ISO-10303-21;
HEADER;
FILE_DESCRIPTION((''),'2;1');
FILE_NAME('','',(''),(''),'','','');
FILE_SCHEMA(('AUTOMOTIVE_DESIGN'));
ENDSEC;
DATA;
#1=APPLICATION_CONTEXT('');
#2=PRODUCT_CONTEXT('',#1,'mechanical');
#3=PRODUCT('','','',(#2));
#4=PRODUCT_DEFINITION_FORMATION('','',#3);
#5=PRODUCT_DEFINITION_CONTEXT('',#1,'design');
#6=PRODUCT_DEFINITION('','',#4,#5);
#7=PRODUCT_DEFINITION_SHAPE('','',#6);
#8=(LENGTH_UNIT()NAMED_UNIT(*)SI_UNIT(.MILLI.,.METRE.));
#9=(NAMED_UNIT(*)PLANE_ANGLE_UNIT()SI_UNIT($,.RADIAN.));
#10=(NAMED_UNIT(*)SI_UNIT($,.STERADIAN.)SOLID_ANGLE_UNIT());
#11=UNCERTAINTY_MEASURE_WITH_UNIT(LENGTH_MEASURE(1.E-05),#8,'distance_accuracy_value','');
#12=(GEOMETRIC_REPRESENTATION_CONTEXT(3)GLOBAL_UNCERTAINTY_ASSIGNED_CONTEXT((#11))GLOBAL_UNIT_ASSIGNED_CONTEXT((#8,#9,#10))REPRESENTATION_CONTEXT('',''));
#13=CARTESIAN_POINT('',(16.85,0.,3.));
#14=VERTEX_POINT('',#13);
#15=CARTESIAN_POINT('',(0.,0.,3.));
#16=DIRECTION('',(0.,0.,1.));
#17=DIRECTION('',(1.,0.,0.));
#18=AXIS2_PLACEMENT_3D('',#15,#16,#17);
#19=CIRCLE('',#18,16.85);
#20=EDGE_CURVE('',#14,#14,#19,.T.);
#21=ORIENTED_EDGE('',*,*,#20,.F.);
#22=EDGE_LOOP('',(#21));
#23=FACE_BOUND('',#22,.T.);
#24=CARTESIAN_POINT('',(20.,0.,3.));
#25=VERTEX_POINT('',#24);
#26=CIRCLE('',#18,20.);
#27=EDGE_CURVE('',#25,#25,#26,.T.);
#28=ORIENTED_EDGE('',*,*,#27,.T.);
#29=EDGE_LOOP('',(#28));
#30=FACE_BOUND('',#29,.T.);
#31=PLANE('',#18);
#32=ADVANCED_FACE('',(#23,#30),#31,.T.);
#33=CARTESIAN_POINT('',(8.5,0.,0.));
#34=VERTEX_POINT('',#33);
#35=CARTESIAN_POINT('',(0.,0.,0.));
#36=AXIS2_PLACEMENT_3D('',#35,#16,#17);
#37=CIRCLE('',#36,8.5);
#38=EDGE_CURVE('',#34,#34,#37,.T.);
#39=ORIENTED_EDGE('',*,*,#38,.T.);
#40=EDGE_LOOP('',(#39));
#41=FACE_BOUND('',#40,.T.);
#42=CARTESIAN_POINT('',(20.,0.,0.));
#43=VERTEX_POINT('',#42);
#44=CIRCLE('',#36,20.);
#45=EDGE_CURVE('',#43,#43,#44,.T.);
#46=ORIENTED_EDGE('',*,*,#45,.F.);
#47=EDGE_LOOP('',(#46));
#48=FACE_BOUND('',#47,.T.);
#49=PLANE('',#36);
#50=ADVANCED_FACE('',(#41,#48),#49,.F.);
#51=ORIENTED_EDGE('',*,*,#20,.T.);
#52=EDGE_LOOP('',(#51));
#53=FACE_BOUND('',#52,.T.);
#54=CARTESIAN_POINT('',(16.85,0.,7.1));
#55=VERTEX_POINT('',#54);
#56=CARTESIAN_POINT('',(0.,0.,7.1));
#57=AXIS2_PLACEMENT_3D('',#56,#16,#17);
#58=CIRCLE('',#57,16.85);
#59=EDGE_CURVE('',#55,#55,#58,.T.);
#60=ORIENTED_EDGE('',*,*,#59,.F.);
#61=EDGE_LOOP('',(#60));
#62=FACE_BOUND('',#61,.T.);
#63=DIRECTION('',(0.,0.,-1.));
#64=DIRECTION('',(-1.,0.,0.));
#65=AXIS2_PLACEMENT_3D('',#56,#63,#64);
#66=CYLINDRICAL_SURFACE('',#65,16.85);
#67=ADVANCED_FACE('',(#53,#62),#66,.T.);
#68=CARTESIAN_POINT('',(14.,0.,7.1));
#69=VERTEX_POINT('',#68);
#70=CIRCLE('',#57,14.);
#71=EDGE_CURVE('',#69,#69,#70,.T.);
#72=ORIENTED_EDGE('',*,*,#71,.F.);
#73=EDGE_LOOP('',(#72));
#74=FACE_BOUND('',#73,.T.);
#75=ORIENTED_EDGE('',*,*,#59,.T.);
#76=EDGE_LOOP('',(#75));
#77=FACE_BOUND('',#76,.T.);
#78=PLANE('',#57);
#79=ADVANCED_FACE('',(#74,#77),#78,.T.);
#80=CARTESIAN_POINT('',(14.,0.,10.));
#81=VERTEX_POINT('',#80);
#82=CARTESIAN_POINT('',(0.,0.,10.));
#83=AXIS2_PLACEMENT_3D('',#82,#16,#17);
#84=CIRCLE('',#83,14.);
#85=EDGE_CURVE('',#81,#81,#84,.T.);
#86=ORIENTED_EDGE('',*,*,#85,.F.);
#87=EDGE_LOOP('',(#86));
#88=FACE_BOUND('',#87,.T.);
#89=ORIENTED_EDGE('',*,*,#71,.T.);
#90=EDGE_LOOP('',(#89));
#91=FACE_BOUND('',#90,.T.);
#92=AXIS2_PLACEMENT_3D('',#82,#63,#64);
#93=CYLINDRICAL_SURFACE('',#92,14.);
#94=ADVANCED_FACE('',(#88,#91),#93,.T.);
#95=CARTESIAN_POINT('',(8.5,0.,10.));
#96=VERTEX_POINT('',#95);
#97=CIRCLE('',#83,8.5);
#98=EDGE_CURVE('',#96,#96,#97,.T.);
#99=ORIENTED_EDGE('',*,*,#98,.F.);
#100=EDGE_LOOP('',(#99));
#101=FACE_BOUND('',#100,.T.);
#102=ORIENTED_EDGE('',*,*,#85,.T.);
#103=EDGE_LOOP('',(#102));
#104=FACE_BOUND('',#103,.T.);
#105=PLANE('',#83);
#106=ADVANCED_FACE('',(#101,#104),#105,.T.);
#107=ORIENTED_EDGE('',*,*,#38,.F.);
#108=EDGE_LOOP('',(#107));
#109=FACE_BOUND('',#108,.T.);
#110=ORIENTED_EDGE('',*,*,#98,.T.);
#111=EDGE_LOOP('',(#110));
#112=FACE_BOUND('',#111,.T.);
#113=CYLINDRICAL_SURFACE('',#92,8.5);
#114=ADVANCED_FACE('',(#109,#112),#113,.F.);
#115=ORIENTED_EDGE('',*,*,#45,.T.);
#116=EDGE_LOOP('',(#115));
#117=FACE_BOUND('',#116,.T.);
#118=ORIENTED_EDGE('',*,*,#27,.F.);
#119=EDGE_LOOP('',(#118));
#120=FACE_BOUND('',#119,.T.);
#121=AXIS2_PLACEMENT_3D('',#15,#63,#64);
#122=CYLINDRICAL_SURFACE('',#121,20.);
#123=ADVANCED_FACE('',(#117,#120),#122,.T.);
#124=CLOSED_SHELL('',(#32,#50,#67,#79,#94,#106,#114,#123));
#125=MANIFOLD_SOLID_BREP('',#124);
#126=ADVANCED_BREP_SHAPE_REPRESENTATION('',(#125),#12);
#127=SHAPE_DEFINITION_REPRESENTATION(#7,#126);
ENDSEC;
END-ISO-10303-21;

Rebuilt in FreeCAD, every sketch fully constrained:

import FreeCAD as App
import Part
import Sketcher

doc = App.newDocument("Part")
body = doc.addObject("PartDesign::Body", "Body")

sketch1 = doc.addObject("Sketcher::SketchObject", "Sketch")
body.addObject(sketch1)
sketch1.AttachmentSupport = (doc.XY_Plane, [""])
sketch1.MapMode = "FlatFace"
sketch1.addGeometry(Part.Circle(App.Vector(0, 0, 0), App.Vector(0, 0, 1), 20), False)
sketch1.addGeometry(Part.Circle(App.Vector(0, 0, 0), App.Vector(0, 0, 1), 17), False)
sketch1.addConstraint(Sketcher.Constraint("Coincident", 0, 3, -1, 1))
sketch1.addConstraint(Sketcher.Constraint("Coincident", 1, 3, -1, 1))
sketch1.addConstraint(Sketcher.Constraint("Diameter", 0, 40.0))
sketch1.addConstraint(Sketcher.Constraint("Diameter", 1, 33.7))
pad1 = doc.addObject("PartDesign::Pad", "Pad")
body.addObject(pad1)
pad1.Profile = sketch1
pad1.Length = 3

sketch2 = doc.addObject("Sketcher::SketchObject", "Sketch001")
body.addObject(sketch2)
sketch2.AttachmentSupport = (doc.XY_Plane, [""])
sketch2.MapMode = "FlatFace"
sketch2.addGeometry(Part.Circle(App.Vector(0, 0, 0), App.Vector(0, 0, 1), 17), False)
sketch2.addGeometry(Part.Circle(App.Vector(0, 0, 0), App.Vector(0, 0, 1), 14), False)
sketch2.addConstraint(Sketcher.Constraint("Coincident", 0, 3, -1, 1))
sketch2.addConstraint(Sketcher.Constraint("Coincident", 1, 3, -1, 1))
sketch2.addConstraint(Sketcher.Constraint("Diameter", 1, 28.0))
sketch2.addConstraint(Sketcher.Constraint("Diameter", 0, 33.7))
pad2 = doc.addObject("PartDesign::Pad", "Pad001")
body.addObject(pad2)
pad2.Profile = sketch2
pad2.Length = 7.1

sketch3 = doc.addObject("Sketcher::SketchObject", "Sketch002")
body.addObject(sketch3)
sketch3.AttachmentSupport = (doc.XY_Plane, [""])
sketch3.MapMode = "FlatFace"
sketch3.addGeometry(Part.Circle(App.Vector(0, 0, 0), App.Vector(0, 0, 1), 14), False)
sketch3.addGeometry(Part.Circle(App.Vector(0, 0, 0), App.Vector(0, 0, 1), 8), False)
sketch3.addConstraint(Sketcher.Constraint("Coincident", 0, 3, -1, 1))
sketch3.addConstraint(Sketcher.Constraint("Coincident", 1, 3, -1, 1))
sketch3.addConstraint(Sketcher.Constraint("Diameter", 0, 28.0))
sketch3.addConstraint(Sketcher.Constraint("Diameter", 1, 17.0))
pad3 = doc.addObject("PartDesign::Pad", "Pad002")
body.addObject(pad3)
pad3.Profile = sketch3
pad3.Length = 10

doc.recompute()
